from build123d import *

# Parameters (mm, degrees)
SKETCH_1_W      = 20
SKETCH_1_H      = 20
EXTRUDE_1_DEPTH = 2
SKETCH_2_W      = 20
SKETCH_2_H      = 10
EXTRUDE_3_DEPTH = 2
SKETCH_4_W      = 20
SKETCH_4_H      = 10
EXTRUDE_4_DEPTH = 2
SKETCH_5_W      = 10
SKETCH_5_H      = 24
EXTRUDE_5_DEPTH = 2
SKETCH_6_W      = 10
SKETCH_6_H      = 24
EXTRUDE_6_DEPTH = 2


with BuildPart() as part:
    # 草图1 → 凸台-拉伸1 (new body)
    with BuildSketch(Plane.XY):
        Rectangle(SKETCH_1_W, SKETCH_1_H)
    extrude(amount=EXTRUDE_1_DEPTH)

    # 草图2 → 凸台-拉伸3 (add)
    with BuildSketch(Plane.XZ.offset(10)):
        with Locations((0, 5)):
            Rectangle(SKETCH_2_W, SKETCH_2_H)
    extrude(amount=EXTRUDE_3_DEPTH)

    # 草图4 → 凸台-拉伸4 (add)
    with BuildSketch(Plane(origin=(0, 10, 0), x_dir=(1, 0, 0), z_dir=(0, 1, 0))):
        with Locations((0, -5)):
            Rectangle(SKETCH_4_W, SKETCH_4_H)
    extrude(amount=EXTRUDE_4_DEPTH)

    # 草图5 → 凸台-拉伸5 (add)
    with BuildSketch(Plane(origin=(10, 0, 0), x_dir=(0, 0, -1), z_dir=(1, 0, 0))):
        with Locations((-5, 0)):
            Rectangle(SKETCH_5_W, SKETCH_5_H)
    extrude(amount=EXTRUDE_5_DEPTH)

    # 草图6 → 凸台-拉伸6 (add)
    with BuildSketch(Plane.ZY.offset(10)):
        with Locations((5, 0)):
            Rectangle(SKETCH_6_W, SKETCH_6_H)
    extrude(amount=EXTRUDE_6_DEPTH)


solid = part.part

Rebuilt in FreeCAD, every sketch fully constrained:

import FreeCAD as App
import Part
import Sketcher
Q = App.Units.Quantity

doc = App.newDocument("Part")
body = doc.addObject("PartDesign::Body", "Body")

sketch1 = doc.addObject("Sketcher::SketchObject", "Sketch")
body.addObject(sketch1)
sketch1.AttachmentSupport = (doc.XY_Plane, [""])
sketch1.MapMode = "FlatFace"
sketch1.addGeometry([
    Part.LineSegment(App.Vector(-10, 10, 0), App.Vector(-10, -10, 0)),
    Part.LineSegment(App.Vector(-10, -10, 0), App.Vector(10, -10, 0)),
    Part.LineSegment(App.Vector(10, -10, 0), App.Vector(10, 10, 0)),
    Part.LineSegment(App.Vector(10, 10, 0), App.Vector(-10, 10, 0)),
], False)
sketch1.addConstraint([
    Sketcher.Constraint("Coincident", 0, 2, 1, 1),
    Sketcher.Constraint("Coincident", 1, 2, 2, 1),
    Sketcher.Constraint("Coincident", 2, 2, 3, 1),
    Sketcher.Constraint("Coincident", 3, 2, 0, 1),
    Sketcher.Constraint("Vertical", 0),
    Sketcher.Constraint("Horizontal", 1),
    Sketcher.Constraint("Vertical", 2),
    Sketcher.Constraint("Horizontal", 3),
    Sketcher.Constraint("Symmetric", 0, 2, 2, 2, -1, 1),
    Sketcher.Constraint("Equal", 3, 0),
    Sketcher.Constraint("DistanceX", 1, 1, 1, 2, Q("20 mm")),
])
pad1 = doc.addObject("PartDesign::Pad", "Pad")
body.addObject(pad1)
pad1.Profile = sketch1
pad1.Length = 2

sketch2 = doc.addObject("Sketcher::SketchObject", "Sketch001")
body.addObject(sketch2)
sketch2.AttachmentSupport = (doc.XZ_Plane, [""])
sketch2.MapMode = "FlatFace"
sketch2.AttachmentOffset = App.Placement(App.Vector(0, 0, 10), App.Rotation())
sketch2.addGeometry([
    Part.LineSegment(App.Vector(-10, 10, 0), App.Vector(-10, 0, 0)),
    Part.LineSegment(App.Vector(-10, 0, 0), App.Vector(10, 0, 0)),
    Part.LineSegment(App.Vector(10, 0, 0), App.Vector(10, 10, 0)),
    Part.LineSegment(App.Vector(10, 10, 0), App.Vector(-10, 10, 0)),
], False)
sketch2.addConstraint([
    Sketcher.Constraint("Coincident", 0, 2, 1, 1),
    Sketcher.Constraint("Coincident", 1, 2, 2, 1),
    Sketcher.Constraint("Coincident", 2, 2, 3, 1),
    Sketcher.Constraint("Coincident", 3, 2, 0, 1),
    Sketcher.Constraint("Vertical", 0),
    Sketcher.Constraint("Horizontal", 1),
    Sketcher.Constraint("Vertical", 2),
    Sketcher.Constraint("Horizontal", 3),
    Sketcher.Constraint("Symmetric", 0, 2, 1, 2, -1, 1),
    Sketcher.Constraint("DistanceX", 1, 1, 1, 2, Q("20 mm")),
    Sketcher.Constraint("DistanceY", 0, 2, 0, 1, Q("10 mm")),
])
pad2 = doc.addObject("PartDesign::Pad", "Pad001")
body.addObject(pad2)
pad2.Profile = sketch2
pad2.Length = 2

sketch3 = doc.addObject("Sketcher::SketchObject", "Sketch002")
body.addObject(sketch3)
sketch3.AttachmentSupport = (doc.XZ_Plane, [""])
sketch3.MapMode = "FlatFace"
sketch3.AttachmentOffset = App.Placement(App.Vector(0, 0, -10), App.Rotation())
sketch3.addGeometry([
    Part.LineSegment(App.Vector(-10, 0, 0), App.Vector(-10, 10, 0)),
    Part.LineSegment(App.Vector(-10, 10, 0), App.Vector(10, 10, 0)),
    Part.LineSegment(App.Vector(10, 10, 0), App.Vector(10, 0, 0)),
    Part.LineSegment(App.Vector(10, 0, 0), App.Vector(-10, 0, 0)),
], False)
sketch3.addConstraint([
    Sketcher.Constraint("Coincident", 0, 2, 1, 1),
    Sketcher.Constraint("Coincident", 1, 2, 2, 1),
    Sketcher.Constraint("Coincident", 2, 2, 3, 1),
    Sketcher.Constraint("Coincident", 3, 2, 0, 1),
    Sketcher.Constraint("Vertical", 0),
    Sketcher.Constraint("Horizontal", 1),
    Sketcher.Constraint("Vertical", 2),
    Sketcher.Constraint("Horizontal", 3),
    Sketcher.Constraint("Symmetric", 2, 2, 3, 2, -1, 1),
    Sketcher.Constraint("DistanceX", 1, 1, 1, 2, Q("20 mm")),
    Sketcher.Constraint("DistanceY", 0, 1, 0, 2, Q("10 mm")),
])
pad3 = doc.addObject("PartDesign::Pad", "Pad002")
body.addObject(pad3)
pad3.Profile = sketch3
pad3.Length = 2
pad3.Reversed = True

sketch4 = doc.addObject("Sketcher::SketchObject", "Sketch003")
body.addObject(sketch4)
sketch4.AttachmentSupport = (doc.YZ_Plane, [""])
sketch4.MapMode = "FlatFace"
sketch4.AttachmentOffset = App.Placement(App.Vector(0, 0, 10), App.Rotation())
sketch4.addGeometry([
    Part.LineSegment(App.Vector(12, 10, 0), App.Vector(-12, 10, 0)),
    Part.LineSegment(App.Vector(-12, 10, 0), App.Vector(-12, 0, 0)),
    Part.LineSegment(App.Vector(-12, 0, 0), App.Vector(12, 0, 0)),
    Part.LineSegment(App.Vector(12, 0, 0), App.Vector(12, 10, 0)),
], False)
sketch4.addConstraint([
    Sketcher.Constraint("Coincident", 0, 2, 1, 1),
    Sketcher.Constraint("Coincident", 1, 2, 2, 1),
    Sketcher.Constraint("Coincident", 2, 2, 3, 1),
    Sketcher.Constraint("Coincident", 3, 2, 0, 1),
    Sketcher.Constraint("Horizontal", 0),
    Sketcher.Constraint("Vertical", 1),
    Sketcher.Constraint("Horizontal", 2),
    Sketcher.Constraint("Vertical", 3),
    Sketcher.Constraint("Symmetric", 1, 2, 2, 2, -1, 1),
    Sketcher.Constraint("DistanceX", 0, 2, 0, 1, Q("24 mm")),
    Sketcher.Constraint("DistanceY", 1, 2, 1, 1, Q("10 mm")),
])
pad4 = doc.addObject("PartDesign::Pad", "Pad003")
body.addObject(pad4)
pad4.Profile = sketch4
pad4.Length = 2

sketch5 = doc.addObject("Sketcher::SketchObject", "Sketch004")
body.addObject(sketch5)
sketch5.AttachmentSupport = (doc.YZ_Plane, [""])
sketch5.MapMode = "FlatFace"
sketch5.AttachmentOffset = App.Placement(App.Vector(0, 0, -10), App.Rotation())
sketch5.addGeometry([
    Part.LineSegment(App.Vector(12, 0, 0), App.Vector(-12, 0, 0)),
    Part.LineSegment(App.Vector(-12, 0, 0), App.Vector(-12, 10, 0)),
    Part.LineSegment(App.Vector(-12, 10, 0), App.Vector(12, 10, 0)),
    Part.LineSegment(App.Vector(12, 10, 0), App.Vector(12, 0, 0)),
], False)
sketch5.addConstraint([
    Sketcher.Constraint("Coincident", 0, 2, 1, 1),
    Sketcher.Constraint("Coincident", 1, 2, 2, 1),
    Sketcher.Constraint("Coincident", 2, 2, 3, 1),
    Sketcher.Constraint("Coincident", 3, 2, 0, 1),
    Sketcher.Constraint("Horizontal", 0),
    Sketcher.Constraint("Vertical", 1),
    Sketcher.Constraint("Horizontal", 2),
    Sketcher.Constraint("Vertical", 3),
    Sketcher.Constraint("Symmetric", 0, 2, 3, 2, -1, 1),
    Sketcher.Constraint("DistanceX", 0, 2, 0, 1, Q("24 mm")),
    Sketcher.Constraint("DistanceY", 1, 1, 1, 2, Q("10 mm")),
])
pad5 = doc.addObject("PartDesign::Pad", "Pad004")
body.addObject(pad5)
pad5.Profile = sketch5
pad5.Length = 2
pad5.Reversed = True

doc.recompute()
